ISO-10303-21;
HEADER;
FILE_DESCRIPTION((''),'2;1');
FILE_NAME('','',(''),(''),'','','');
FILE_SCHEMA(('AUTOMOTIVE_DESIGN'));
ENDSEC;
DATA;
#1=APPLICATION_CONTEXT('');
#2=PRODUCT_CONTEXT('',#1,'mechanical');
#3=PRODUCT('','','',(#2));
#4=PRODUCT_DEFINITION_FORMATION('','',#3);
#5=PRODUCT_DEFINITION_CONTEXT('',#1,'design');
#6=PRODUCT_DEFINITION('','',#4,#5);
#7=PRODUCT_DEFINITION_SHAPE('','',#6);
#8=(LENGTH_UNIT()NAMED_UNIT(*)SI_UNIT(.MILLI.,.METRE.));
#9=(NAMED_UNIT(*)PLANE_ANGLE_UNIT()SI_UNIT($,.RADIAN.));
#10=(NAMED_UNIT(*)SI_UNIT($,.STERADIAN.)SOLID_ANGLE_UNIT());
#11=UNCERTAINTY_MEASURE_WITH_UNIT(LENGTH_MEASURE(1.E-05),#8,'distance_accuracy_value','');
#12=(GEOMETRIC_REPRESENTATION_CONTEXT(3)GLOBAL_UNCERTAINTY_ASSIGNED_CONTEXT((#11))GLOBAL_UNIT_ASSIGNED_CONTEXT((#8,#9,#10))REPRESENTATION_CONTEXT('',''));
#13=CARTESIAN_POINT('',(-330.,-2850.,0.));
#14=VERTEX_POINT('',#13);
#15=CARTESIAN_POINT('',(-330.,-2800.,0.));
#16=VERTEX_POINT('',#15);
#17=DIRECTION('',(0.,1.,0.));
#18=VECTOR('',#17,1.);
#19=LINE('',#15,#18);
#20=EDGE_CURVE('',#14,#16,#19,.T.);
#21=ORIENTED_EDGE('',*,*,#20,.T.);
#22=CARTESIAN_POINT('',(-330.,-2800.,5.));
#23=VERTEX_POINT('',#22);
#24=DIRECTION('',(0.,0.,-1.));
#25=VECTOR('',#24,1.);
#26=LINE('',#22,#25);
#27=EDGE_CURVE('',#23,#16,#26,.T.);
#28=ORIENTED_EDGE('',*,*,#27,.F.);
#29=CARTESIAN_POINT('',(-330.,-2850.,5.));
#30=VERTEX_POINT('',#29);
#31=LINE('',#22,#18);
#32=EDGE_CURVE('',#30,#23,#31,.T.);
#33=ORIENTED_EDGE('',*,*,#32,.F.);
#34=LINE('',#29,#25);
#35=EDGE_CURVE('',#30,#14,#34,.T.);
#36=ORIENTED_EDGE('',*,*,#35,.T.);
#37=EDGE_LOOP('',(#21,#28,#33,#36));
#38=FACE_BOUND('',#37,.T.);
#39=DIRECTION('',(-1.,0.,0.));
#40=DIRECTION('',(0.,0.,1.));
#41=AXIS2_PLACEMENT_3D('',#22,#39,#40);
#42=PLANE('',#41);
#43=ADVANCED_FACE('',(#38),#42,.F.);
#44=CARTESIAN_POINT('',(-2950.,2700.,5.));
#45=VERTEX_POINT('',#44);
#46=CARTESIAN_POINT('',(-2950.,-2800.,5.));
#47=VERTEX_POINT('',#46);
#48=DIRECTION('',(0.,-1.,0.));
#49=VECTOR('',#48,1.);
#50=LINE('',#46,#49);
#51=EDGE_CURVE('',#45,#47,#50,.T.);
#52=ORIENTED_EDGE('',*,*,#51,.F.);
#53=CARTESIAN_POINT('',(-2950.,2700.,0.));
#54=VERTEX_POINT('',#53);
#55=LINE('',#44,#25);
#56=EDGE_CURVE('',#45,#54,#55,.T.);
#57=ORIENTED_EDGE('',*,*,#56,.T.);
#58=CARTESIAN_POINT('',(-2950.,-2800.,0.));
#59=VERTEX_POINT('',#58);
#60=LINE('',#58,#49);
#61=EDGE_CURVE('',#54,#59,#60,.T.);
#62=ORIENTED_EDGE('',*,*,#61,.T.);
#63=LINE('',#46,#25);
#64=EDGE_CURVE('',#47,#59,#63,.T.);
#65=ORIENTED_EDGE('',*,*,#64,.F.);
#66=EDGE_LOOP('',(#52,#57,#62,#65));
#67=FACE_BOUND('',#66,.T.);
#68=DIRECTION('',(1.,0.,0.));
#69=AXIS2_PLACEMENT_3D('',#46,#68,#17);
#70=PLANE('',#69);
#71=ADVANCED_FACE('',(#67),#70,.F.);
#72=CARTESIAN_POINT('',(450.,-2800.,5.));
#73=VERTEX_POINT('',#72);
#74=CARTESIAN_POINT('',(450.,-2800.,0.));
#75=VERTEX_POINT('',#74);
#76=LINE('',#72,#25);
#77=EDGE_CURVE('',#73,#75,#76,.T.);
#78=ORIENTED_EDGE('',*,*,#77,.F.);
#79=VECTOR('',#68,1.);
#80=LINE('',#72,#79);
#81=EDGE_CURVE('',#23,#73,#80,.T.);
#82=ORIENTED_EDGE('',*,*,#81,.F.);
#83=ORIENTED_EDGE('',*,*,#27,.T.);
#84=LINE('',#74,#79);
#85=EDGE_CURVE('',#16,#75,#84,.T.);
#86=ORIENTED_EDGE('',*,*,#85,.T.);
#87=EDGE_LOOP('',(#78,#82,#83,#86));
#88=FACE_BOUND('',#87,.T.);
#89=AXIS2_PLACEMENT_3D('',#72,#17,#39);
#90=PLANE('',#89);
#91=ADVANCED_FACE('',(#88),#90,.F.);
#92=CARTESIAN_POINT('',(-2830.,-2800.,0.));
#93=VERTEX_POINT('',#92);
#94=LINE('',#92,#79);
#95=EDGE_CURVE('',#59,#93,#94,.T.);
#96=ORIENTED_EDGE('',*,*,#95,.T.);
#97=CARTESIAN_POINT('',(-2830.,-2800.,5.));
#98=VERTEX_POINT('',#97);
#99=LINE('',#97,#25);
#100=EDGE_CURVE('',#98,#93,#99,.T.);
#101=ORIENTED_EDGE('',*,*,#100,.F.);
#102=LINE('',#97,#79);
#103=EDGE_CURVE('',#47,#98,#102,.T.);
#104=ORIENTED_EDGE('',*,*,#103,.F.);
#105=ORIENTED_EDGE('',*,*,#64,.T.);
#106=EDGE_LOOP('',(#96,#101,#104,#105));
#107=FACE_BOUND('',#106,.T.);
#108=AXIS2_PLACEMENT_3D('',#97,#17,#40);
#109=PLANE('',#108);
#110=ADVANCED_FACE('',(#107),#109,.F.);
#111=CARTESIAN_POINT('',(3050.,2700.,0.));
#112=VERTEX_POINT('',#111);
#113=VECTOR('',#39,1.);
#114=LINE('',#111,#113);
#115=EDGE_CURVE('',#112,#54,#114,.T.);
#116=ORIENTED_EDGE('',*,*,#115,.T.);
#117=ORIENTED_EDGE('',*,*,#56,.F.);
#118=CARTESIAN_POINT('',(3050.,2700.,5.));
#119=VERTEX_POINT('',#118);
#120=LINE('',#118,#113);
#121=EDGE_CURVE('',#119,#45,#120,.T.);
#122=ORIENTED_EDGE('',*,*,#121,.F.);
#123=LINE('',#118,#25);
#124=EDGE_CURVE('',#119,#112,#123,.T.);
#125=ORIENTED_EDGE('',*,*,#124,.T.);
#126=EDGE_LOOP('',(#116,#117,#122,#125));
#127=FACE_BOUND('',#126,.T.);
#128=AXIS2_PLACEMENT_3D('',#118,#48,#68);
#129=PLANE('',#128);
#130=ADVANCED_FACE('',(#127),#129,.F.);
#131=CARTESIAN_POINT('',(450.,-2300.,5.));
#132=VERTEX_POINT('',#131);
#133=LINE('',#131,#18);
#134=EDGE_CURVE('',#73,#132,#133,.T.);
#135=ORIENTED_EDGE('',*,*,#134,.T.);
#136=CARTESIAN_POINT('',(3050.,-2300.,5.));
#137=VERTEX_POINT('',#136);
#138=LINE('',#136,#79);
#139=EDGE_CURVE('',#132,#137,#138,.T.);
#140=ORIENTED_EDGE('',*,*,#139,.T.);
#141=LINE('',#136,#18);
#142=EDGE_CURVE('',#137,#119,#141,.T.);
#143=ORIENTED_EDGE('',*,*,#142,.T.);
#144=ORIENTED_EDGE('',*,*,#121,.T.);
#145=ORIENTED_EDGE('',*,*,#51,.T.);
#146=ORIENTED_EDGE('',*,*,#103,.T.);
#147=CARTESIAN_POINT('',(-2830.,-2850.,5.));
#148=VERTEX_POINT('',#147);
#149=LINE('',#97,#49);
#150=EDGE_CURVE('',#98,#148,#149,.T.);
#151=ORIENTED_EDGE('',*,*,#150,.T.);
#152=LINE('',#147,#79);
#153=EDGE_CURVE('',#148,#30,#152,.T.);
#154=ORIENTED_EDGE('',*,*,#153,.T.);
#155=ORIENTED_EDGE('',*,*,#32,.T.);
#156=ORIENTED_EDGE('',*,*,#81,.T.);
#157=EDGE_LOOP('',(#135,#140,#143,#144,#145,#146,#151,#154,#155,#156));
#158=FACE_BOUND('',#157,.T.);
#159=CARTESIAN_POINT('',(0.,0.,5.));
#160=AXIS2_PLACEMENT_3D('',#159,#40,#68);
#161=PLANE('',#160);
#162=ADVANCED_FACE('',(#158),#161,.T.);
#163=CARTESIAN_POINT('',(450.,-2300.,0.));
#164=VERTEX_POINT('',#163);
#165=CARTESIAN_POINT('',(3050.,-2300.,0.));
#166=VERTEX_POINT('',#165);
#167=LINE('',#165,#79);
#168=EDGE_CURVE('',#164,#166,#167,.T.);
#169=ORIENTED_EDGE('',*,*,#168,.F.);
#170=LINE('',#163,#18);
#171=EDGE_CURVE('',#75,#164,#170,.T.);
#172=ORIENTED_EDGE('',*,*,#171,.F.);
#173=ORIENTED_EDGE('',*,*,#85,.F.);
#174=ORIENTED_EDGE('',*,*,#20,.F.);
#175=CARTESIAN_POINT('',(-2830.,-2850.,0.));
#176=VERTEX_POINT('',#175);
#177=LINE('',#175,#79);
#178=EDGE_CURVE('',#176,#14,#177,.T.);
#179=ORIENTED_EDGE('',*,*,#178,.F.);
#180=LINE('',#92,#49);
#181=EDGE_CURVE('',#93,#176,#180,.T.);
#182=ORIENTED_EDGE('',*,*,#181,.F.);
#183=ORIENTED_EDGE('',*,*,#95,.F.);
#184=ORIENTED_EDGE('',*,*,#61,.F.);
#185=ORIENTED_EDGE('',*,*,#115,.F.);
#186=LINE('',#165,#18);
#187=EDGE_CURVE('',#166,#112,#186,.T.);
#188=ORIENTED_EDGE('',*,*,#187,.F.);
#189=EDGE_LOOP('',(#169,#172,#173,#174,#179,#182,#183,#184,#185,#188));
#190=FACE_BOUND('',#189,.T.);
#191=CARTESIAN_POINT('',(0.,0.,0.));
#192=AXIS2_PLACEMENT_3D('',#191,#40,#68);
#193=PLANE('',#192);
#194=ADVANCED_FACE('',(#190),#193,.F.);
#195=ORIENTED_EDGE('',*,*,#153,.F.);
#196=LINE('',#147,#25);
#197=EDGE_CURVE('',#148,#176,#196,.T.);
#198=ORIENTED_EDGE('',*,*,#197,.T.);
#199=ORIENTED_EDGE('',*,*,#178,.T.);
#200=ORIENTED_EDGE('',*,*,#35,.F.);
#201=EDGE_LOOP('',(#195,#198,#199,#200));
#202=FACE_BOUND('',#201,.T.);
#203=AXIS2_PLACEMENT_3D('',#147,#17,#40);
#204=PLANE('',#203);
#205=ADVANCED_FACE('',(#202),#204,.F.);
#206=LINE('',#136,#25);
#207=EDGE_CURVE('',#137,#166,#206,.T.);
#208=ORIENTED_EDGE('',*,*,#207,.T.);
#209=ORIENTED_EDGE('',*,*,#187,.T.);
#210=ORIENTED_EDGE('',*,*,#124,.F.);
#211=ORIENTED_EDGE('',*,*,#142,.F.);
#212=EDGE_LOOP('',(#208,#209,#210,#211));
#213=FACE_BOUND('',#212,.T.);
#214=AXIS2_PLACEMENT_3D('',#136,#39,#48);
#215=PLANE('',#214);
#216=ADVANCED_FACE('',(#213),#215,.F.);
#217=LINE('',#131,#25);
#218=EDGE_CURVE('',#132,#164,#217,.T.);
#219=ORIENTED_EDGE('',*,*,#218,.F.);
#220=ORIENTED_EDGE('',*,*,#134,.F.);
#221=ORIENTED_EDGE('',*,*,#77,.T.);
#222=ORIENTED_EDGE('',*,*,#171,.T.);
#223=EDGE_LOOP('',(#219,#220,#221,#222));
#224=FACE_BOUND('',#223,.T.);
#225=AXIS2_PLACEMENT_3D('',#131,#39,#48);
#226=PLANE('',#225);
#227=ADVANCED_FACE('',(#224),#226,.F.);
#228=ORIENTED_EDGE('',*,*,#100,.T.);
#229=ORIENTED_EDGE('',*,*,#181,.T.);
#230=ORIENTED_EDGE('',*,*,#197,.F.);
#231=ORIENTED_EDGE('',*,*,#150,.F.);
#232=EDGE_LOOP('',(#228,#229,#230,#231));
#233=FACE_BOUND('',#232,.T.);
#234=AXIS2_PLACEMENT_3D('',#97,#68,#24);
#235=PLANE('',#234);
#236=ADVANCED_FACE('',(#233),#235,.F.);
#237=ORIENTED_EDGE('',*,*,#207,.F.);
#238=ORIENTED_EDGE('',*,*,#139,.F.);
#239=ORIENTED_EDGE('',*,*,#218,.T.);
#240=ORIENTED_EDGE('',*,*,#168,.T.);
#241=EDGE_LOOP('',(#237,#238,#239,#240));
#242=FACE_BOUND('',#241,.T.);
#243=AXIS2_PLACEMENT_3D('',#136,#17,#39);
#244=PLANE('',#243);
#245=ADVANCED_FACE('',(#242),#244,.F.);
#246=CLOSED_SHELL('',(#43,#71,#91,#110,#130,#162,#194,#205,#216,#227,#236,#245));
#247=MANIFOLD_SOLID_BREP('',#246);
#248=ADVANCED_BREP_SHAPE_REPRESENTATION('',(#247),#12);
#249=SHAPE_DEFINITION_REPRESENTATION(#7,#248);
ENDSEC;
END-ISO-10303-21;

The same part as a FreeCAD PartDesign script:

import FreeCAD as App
import Part
import Sketcher
from FreeCAD import Vector

doc = App.newDocument("Part")
body = doc.addObject("PartDesign::Body", "Body")

sketch1 = body.newObject("Sketcher::SketchObject", "Sketch")
sketch1.AttachmentSupport = (doc.getObject("XY_Plane"), [""])
sketch1.MapMode = "FlatFace"
sketch1.addGeometry([
    Part.LineSegment(Vector(-2950, -2800, 0), Vector(-2830, -2800, 0)),
    Part.LineSegment(Vector(-2830, -2800, 0), Vector(-2830, -2850, 0)),
    Part.LineSegment(Vector(-2830, -2850, 0), Vector(-330, -2850, 0)),
    Part.LineSegment(Vector(-330, -2850, 0), Vector(-330, -2800, 0)),
    Part.LineSegment(Vector(-330, -2800, 0), Vector(450, -2800, 0)),
    Part.LineSegment(Vector(450, -2800, 0), Vector(450, -2300, 0)),
    Part.LineSegment(Vector(450, -2300, 0), Vector(3050, -2300, 0)),
    Part.LineSegment(Vector(3050, -2300, 0), Vector(3050, 2700, 0)),
    Part.LineSegment(Vector(3050, 2700, 0), Vector(-2950, 2700, 0)),
    Part.LineSegment(Vector(-2950, 2700, 0), Vector(-2950, -2800, 0)),
], False)
sketch1.addConstraint([
    Sketcher.Constraint("Coincident", 0, 2, 1, 1),
    Sketcher.Constraint("Coincident", 1, 2, 2, 1),
    Sketcher.Constraint("Coincident", 2, 2, 3, 1),
    Sketcher.Constraint("Coincident", 3, 2, 4, 1),
    Sketcher.Constraint("Coincident", 4, 2, 5, 1),
    Sketcher.Constraint("Coincident", 5, 2, 6, 1),
    Sketcher.Constraint("Coincident", 6, 2, 7, 1),
    Sketcher.Constraint("Coincident", 7, 2, 8, 1),
    Sketcher.Constraint("Coincident", 8, 2, 9, 1),
    Sketcher.Constraint("Coincident", 9, 2, 0, 1),
    Sketcher.Constraint("Horizontal", 0),
    Sketcher.Constraint("Vertical", 1),
    Sketcher.Constraint("Horizontal", 2),
    Sketcher.Constraint("Vertical", 3),
    Sketcher.Constraint("Horizontal", 4),
    Sketcher.Constraint("Vertical", 5),
    Sketcher.Constraint("Horizontal", 6),
    Sketcher.Constraint("Vertical", 7),
    Sketcher.Constraint("Horizontal", 8),
    Sketcher.Constraint("Vertical", 9),
    Sketcher.Constraint("Horizontal", 0, 2, 3, 2),
    Sketcher.Constraint("DistanceX", 0, 1, 0, 2, 120.0),
    Sketcher.Constraint("DistanceX", 2, 1, 2, 2, 2500.0),
    Sketcher.Constraint("DistanceX", 4, 1, 4, 2, 780.0),
    Sketcher.Constraint("DistanceX", 6, 1, 6, 2, 2600.0),
    Sketcher.Constraint("DistanceY", 1, 2, 1, 1, 50.0),
    Sketcher.Constraint("DistanceY", 5, 1, 5, 2, 500.0),
    Sketcher.Constraint("DistanceY", 7, 1, 7, 2, 5000.0),
    Sketcher.Constraint("DistanceX", 0, 2, -1, 1, 2830.0),
    Sketcher.Constraint("DistanceY", 0, 2, -1, 1, 2800.0),
])
pad1 = body.newObject("PartDesign::Pad", "Pad")
pad1.Profile = sketch1
pad1.Length = 5

doc.recompute()
